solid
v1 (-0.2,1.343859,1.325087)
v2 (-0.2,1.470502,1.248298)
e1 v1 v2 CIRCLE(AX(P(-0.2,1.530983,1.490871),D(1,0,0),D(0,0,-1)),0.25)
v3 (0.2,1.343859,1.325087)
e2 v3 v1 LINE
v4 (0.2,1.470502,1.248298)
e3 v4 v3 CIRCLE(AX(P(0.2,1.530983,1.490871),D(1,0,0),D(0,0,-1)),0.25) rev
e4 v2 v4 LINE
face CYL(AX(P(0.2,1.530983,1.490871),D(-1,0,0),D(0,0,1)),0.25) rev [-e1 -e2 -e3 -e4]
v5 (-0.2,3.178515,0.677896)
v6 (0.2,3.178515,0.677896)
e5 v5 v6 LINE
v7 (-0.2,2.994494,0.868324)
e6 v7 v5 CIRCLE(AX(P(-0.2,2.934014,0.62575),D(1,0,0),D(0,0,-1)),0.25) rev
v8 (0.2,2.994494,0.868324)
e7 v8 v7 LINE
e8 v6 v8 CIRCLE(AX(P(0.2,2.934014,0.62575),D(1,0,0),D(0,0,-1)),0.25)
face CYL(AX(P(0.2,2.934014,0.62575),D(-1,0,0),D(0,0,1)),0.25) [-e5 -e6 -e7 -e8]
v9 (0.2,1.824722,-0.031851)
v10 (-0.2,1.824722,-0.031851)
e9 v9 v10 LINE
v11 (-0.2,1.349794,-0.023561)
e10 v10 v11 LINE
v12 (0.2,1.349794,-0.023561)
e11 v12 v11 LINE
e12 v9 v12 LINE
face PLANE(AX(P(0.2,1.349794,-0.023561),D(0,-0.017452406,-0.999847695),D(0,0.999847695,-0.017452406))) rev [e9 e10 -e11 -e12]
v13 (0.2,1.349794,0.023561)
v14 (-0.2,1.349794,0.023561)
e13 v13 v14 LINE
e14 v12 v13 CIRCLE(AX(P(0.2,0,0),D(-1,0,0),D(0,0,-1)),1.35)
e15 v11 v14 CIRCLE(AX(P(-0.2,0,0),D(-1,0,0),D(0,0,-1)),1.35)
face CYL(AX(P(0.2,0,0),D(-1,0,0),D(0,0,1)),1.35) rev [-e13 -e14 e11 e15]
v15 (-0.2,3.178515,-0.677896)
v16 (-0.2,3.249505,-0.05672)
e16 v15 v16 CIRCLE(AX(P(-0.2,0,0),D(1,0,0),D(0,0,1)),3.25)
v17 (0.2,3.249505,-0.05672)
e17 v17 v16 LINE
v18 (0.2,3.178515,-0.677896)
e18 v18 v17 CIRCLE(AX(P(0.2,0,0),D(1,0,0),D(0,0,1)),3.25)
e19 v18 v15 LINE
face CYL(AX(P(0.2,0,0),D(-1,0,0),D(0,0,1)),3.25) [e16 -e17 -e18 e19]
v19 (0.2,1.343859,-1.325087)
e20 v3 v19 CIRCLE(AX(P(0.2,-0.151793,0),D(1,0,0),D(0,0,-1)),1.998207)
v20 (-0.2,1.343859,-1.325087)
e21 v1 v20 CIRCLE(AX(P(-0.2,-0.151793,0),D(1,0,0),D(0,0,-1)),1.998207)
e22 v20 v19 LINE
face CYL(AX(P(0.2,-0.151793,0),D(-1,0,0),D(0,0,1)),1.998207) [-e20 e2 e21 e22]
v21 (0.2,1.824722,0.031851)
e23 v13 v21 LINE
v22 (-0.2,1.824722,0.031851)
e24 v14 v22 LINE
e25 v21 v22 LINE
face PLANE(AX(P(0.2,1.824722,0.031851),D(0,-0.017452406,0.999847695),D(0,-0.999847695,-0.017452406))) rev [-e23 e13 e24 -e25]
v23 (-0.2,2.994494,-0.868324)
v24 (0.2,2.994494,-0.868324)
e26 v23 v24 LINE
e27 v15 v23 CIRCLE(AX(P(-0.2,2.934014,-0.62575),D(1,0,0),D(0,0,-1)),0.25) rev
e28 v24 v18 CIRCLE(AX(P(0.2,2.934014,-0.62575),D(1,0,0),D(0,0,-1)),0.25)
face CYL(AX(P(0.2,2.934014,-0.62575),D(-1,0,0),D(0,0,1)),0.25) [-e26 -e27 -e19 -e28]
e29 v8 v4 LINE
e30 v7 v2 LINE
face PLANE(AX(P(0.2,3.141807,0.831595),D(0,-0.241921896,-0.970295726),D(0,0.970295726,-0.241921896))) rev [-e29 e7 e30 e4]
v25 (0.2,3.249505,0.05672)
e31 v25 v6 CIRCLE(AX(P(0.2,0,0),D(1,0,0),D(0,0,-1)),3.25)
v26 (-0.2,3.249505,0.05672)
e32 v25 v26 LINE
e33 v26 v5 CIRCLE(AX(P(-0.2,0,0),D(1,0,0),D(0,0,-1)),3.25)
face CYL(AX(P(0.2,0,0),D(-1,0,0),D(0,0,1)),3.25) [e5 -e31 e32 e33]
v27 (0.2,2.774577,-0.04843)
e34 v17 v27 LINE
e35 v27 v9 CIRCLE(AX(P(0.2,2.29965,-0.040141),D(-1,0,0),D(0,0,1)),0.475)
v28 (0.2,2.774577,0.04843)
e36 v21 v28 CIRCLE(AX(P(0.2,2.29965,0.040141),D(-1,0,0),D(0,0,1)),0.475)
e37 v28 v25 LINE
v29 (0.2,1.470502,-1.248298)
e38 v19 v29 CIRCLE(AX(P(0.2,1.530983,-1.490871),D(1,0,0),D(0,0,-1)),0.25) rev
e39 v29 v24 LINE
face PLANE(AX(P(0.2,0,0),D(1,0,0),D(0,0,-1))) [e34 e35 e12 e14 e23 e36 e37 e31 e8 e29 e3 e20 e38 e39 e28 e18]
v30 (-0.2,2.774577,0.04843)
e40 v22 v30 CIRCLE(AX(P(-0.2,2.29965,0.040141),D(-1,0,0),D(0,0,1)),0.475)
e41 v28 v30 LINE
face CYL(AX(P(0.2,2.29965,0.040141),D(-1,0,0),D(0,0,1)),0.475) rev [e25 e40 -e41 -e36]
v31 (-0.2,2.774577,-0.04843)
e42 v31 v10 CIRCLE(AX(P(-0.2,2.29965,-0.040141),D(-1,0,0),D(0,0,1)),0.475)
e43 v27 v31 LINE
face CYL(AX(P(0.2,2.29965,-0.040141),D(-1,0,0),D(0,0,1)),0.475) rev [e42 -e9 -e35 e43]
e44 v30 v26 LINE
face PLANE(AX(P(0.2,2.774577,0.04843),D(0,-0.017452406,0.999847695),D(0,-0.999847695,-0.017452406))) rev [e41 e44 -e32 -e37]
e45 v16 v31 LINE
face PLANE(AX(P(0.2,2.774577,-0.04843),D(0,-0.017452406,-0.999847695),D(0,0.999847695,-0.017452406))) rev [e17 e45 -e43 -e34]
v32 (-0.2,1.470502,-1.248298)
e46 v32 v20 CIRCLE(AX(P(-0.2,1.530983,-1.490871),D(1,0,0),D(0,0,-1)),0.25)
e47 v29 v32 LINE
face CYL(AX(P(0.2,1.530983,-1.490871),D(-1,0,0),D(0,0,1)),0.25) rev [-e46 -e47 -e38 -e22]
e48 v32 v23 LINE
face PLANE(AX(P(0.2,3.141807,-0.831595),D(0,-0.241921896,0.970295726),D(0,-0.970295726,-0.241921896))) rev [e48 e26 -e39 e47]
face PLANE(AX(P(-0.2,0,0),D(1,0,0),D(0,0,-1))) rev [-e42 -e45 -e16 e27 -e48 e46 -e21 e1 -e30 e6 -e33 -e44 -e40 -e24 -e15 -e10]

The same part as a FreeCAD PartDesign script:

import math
import FreeCAD as App
import Part
import Sketcher

V = App.Vector
Q = App.Units.Quantity


def edges_at(feature, points):
    """Names of the edges that pass closest to the given points."""
    edges = feature.Shape.Edges
    near = lambda p: min(range(len(edges)), key=lambda i: edges[i].distToShape(Part.Vertex(*p))[0])
    return sorted({f"Edge{near(p) + 1}" for p in points})

doc = App.newDocument("Part")
params = doc.addObject("Spreadsheet::Sheet", "Params")
for row, (alias, value) in enumerate([
    ("sketch1_radius", "1.35 mm"),
    ("sketch1_radius2", "3.25 mm"),
    ("pad1_length", "0.4 mm"),
    ("fillet_radius", "0.25 mm"),
], start=1):
    params.set(f"A{row}", alias)
    params.set(f"B{row}", "=" + value)
    params.setAlias(f"B{row}", alias)

body = doc.addObject("PartDesign::Body", "Body")

# Sketch on YZ plane
sketch1 = body.newObject("Sketcher::SketchObject", "Sketch")
sketch1.AttachmentSupport = (doc.getObject("YZ_Plane"), [""])
sketch1.MapMode = "FlatFace"
sketch1.addGeometry([
    Part.LineSegment(V(1.824722, -0.031851, 0), V(1.349794, -0.023561, 0)),  # 0
    Part.ArcOfCircle(Part.Circle(V(0, 0, 0), V(0, 0, 1), 1.35), math.radians(1), math.radians(359)),  # 1
    Part.LineSegment(V(1.349794, 0.023561, 0), V(1.824722, 0.031851, 0)),  # 2
    Part.ArcOfCircle(Part.Circle(V(2.29965, 0.040141, 0), V(0, 0, 1), 0.475), math.radians(1), math.radians(181)),  # 3
    Part.LineSegment(V(2.774577, 0.04843, 0), V(3.249505, 0.05672, 0)),  # 4
    Part.ArcOfCircle(Part.Circle(V(0, 0, 0), V(0, 0, 1), 3.25), math.radians(1), math.radians(14.825453)),  # 5
    Part.LineSegment(V(3.141807, 0.831595, 0), V(1.392829, 1.267664, 0)),  # 6
    Part.ArcOfCircle(Part.Circle(V(-0.151793, 0, 0), V(0, 0, 1), 1.998207), math.radians(39.375545), math.radians(320.624455)),  # 7
    Part.LineSegment(V(1.392829, -1.267664, 0), V(3.141807, -0.831595, 0)),  # 8
    Part.ArcOfCircle(Part.Circle(V(0, 0, 0), V(0, 0, 1), 3.25), math.radians(-14.825453), math.radians(-1)),  # 9
    Part.LineSegment(V(3.249505, -0.05672, 0), V(2.774577, -0.04843, 0)),  # 10
    Part.ArcOfCircle(Part.Circle(V(2.29965, -0.040141, 0), V(0, 0, 1), 0.475), math.radians(179), math.radians(359)),  # 11
], False)
sketch1.addConstraint([
    Sketcher.Constraint("Coincident", 0, 2, 1, 2),
    Sketcher.Constraint("Coincident", 1, 1, 2, 1),
    Sketcher.Constraint("Coincident", 2, 2, 3, 2),
    Sketcher.Constraint("Coincident", 3, 1, 4, 1),
    Sketcher.Constraint("Coincident", 4, 2, 5, 1),
    Sketcher.Constraint("Coincident", 5, 2, 6, 1),
    Sketcher.Constraint("Coincident", 6, 2, 7, 1),
    Sketcher.Constraint("Coincident", 7, 2, 8, 1),
    Sketcher.Constraint("Coincident", 8, 2, 9, 1),
    Sketcher.Constraint("Coincident", 9, 2, 10, 1),
    Sketcher.Constraint("Coincident", 10, 2, 11, 2),
    Sketcher.Constraint("Coincident", 11, 1, 0, 1),
    Sketcher.Constraint("Coincident", 1, 3, -1, 1),
    Sketcher.Constraint("Coincident", 5, 3, -1, 1),
    Sketcher.Constraint("Coincident", 9, 3, -1, 1),
    Sketcher.Constraint("Equal", 5, 9),
    Sketcher.Constraint("Equal", 3, 11),
    Sketcher.Constraint("Symmetric", 3, 3, 11, 3, -1),
    Sketcher.Constraint("Symmetric", 6, 2, 7, 2, -1),
    Sketcher.Constraint("Parallel", 2, 4),
    Sketcher.Constraint("Parallel", 0, 10),
    Sketcher.Constraint("Vertical", 0, 2, 1, 1),
    Sketcher.Constraint("Vertical", 5, 2, 8, 2),
    Sketcher.Constraint("Vertical", 4, 2, 9, 2),
    Sketcher.Constraint("Vertical", 3, 1, 10, 2),
    Sketcher.Constraint("Equal", 2, 4),
    Sketcher.Constraint("Angle", 0, Q("179 deg")),
    Sketcher.Constraint("Angle", 6, Q("166 deg")),
    Sketcher.Constraint("Radius", 1, 1.35),
    Sketcher.Constraint("Radius", 5, 3.25),
    Sketcher.Constraint("Radius", 3, 0.475),
    Sketcher.Constraint("Radius", 7, 1.998207),
    Sketcher.Constraint("DistanceY", 0, 2, 3, 3, 0.063701),
    Sketcher.Constraint("DistanceX", 5, 2, 4, 2, 0.107698),
    Sketcher.Constraint("DistanceY", 11, 1, 2, 2, 0.063701),
    Sketcher.Constraint("Distance", 6, 1.80252),
    Sketcher.Constraint("DistanceY", -1, 1, 3, 1, 0.04843),
])
sketch1.setExpression("Constraints[28]", "Params.sketch1_radius")
sketch1.setExpression("Constraints[29]", "Params.sketch1_radius2")
pad1 = body.newObject("PartDesign::Pad", "Pad")
pad1.Profile = sketch1
pad1.setExpression("Length", "Params.pad1_length")
pad1.Midplane = True
doc.recompute()

fillet = body.newObject("PartDesign::Fillet", "Fillet")
fillet.Base = (pad1, edges_at(pad1, [
    (0, 3.142, -0.832),
    (0, 1.393, -1.268),
    (0, 1.393, 1.268),
    (0, 3.142, 0.832),
]))
fillet.setExpression("Radius", "Params.fillet_radius")

doc.recompute()
